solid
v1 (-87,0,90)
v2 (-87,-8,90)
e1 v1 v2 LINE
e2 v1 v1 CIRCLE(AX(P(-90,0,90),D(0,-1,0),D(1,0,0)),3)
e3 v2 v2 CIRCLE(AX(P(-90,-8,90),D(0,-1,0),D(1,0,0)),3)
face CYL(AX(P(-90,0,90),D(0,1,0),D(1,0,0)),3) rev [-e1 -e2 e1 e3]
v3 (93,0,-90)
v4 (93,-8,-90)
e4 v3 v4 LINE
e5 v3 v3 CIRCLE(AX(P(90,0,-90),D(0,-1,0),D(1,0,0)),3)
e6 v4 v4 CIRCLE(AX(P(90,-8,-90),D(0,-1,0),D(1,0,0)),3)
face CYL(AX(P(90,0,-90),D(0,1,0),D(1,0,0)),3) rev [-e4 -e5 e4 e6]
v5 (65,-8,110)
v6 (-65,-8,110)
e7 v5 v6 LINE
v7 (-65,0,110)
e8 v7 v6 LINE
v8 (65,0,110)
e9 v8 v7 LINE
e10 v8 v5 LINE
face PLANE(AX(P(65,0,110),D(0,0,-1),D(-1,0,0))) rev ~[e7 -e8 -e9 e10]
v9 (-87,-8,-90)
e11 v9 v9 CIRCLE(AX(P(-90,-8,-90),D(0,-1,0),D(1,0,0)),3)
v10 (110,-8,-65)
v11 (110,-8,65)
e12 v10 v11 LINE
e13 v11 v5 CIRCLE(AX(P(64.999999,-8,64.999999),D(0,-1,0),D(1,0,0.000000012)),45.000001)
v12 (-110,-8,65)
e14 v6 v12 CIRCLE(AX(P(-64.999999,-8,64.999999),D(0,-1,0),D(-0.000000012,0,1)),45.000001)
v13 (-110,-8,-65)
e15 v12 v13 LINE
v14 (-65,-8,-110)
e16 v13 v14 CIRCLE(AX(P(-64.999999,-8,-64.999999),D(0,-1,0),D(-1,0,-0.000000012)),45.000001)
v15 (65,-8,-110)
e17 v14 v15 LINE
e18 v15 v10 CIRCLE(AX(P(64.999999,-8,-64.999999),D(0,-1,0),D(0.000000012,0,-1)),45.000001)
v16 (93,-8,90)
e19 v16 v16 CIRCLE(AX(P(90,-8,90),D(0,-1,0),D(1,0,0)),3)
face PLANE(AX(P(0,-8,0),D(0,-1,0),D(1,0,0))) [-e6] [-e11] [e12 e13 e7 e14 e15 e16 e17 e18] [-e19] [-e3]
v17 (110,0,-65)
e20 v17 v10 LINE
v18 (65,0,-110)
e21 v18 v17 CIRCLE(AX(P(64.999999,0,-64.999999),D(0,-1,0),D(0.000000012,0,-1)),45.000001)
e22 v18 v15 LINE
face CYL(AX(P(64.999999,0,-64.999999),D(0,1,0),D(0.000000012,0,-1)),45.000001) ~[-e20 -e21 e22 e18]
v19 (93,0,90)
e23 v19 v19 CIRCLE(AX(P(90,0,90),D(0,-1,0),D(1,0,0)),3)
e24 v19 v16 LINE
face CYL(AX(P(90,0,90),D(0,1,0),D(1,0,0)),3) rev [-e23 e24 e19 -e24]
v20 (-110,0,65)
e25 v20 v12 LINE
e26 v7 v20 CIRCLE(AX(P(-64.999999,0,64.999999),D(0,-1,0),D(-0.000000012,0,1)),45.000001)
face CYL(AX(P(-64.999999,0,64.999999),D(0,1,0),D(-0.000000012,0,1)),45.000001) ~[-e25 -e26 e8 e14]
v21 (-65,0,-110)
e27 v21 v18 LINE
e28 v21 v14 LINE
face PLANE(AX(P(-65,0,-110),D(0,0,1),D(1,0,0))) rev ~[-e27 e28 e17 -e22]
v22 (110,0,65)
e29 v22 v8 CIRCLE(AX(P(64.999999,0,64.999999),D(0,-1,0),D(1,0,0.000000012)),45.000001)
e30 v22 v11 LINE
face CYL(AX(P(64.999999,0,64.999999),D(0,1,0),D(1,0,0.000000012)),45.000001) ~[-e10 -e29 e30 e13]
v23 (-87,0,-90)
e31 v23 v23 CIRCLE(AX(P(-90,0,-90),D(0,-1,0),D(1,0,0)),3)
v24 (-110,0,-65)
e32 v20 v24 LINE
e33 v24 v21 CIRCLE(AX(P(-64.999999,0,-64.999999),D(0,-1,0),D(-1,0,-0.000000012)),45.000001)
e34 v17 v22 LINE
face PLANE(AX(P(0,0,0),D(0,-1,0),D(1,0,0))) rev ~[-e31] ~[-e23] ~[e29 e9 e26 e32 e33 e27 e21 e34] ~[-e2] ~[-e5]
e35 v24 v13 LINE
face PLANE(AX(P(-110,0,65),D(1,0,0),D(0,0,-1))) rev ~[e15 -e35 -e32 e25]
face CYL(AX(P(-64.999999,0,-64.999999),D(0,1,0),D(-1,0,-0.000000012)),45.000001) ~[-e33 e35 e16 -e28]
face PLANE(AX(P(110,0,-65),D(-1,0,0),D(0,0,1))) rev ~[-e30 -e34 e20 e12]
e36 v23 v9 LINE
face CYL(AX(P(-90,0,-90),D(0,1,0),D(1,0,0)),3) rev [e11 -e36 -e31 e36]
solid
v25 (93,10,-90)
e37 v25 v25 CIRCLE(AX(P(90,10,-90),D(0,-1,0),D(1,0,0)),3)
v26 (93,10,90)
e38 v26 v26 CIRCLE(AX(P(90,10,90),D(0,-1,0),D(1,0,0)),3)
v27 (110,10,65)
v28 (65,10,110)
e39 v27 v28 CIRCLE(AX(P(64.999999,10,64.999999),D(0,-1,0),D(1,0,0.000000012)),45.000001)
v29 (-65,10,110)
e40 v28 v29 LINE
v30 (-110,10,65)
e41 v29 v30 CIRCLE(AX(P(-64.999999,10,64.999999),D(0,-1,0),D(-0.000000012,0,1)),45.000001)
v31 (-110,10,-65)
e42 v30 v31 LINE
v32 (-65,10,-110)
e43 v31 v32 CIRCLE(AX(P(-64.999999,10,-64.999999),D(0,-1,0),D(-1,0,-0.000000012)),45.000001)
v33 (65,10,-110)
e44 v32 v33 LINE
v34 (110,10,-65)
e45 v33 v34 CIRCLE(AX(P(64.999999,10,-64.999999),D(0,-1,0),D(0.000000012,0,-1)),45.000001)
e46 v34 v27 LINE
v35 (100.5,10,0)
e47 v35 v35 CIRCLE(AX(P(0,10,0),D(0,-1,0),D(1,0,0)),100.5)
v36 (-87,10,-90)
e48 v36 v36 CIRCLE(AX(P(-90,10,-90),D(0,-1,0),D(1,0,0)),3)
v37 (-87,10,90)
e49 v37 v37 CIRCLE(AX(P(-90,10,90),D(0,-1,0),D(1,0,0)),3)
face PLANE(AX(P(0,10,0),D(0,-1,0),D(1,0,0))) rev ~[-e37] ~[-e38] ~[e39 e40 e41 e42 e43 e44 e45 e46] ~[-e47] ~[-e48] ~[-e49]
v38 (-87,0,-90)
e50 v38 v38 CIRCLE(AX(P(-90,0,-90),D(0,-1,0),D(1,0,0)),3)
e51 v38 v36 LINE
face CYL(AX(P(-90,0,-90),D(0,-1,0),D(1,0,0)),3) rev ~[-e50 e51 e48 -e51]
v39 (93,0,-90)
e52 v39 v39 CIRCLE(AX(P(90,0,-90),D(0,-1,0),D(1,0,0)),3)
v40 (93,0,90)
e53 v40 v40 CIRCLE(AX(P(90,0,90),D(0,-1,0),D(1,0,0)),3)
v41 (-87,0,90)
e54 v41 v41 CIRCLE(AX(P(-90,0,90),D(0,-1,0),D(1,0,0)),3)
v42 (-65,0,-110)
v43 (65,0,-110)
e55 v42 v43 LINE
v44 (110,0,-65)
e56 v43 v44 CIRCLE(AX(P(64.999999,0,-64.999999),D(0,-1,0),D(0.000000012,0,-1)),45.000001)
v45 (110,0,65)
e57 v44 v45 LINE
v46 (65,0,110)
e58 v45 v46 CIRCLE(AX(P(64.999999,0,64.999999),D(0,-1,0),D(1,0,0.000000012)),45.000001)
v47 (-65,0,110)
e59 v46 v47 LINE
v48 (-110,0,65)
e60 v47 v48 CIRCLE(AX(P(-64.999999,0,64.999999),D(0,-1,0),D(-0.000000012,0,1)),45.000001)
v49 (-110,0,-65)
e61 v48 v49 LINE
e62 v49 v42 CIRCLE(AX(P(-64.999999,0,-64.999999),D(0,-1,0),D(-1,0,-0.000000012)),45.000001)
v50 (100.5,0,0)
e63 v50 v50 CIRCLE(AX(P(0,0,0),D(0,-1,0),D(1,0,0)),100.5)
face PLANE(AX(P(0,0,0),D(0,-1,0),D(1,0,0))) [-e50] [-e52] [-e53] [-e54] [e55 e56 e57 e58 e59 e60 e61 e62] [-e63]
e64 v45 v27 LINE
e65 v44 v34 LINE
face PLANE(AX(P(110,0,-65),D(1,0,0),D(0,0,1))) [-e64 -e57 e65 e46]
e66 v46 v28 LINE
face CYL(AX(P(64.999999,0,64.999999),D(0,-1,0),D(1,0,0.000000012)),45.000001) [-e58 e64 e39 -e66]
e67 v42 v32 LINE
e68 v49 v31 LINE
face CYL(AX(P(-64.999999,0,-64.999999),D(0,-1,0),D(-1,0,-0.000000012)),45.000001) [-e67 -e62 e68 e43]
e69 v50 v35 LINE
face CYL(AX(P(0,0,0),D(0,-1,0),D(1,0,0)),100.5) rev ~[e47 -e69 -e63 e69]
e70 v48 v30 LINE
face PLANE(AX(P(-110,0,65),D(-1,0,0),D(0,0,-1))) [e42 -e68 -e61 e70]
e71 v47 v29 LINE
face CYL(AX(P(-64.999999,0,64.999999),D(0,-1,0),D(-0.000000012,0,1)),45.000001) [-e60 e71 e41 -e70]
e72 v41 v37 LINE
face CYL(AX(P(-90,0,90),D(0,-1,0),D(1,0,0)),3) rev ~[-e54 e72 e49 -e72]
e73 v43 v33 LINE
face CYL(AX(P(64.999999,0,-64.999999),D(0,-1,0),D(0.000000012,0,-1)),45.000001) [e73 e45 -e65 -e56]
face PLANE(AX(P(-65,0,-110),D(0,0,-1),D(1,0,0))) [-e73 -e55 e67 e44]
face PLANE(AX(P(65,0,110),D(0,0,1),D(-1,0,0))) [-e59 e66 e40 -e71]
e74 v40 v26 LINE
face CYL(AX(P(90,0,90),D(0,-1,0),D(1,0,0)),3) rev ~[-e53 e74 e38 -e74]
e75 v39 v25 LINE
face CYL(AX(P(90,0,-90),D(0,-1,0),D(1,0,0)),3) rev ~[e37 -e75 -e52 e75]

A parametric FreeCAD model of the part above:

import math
import FreeCAD as App
import Part
import Sketcher
Q = App.Units.Quantity

doc = App.newDocument("Part")
body = doc.addObject("PartDesign::Body", "Body")

# Sketch on XZ plane
sketch1 = doc.addObject("Sketcher::SketchObject", "Sketch")
body.addObject(sketch1)
sketch1.AttachmentSupport = (doc.XZ_Plane, [""])
sketch1.MapMode = "FlatFace"
sketch1.addGeometry([
    Part.LineSegment(App.Vector(65, 110, 0), App.Vector(-65, 110, 0)),  # 0
    Part.ArcOfCircle(Part.Circle(App.Vector(-65, 65, 0), App.Vector(0, 0, 1), 45), math.radians(90), math.radians(180)),  # 1
    Part.LineSegment(App.Vector(-110, 65, 0), App.Vector(-110, -65, 0)),  # 2
    Part.ArcOfCircle(Part.Circle(App.Vector(-65, -65, 0), App.Vector(0, 0, 1), 45), math.radians(-180), math.radians(-90)),  # 3
    Part.LineSegment(App.Vector(-65, -110, 0), App.Vector(65, -110, 0)),  # 4
    Part.ArcOfCircle(Part.Circle(App.Vector(65, -65, 0), App.Vector(0, 0, 1), 45), math.radians(-90), math.radians(0)),  # 5
    Part.LineSegment(App.Vector(110, -65, 0), App.Vector(110, 65, 0)),  # 6
    Part.ArcOfCircle(Part.Circle(App.Vector(65, 65, 0), App.Vector(0, 0, 1), 45), math.radians(0), math.radians(90)),  # 7
    Part.Circle(App.Vector(-90, -90, 0), App.Vector(0, 0, 1), 3),  # 8
    Part.Circle(App.Vector(90, -90, 0), App.Vector(0, 0, 1), 3),  # 9
    Part.Circle(App.Vector(-90, 90, 0), App.Vector(0, 0, 1), 3),  # 10
    Part.Circle(App.Vector(0, 0, 0), App.Vector(0, 0, 1), 100.5),  # 11
    Part.Circle(App.Vector(90, 90, 0), App.Vector(0, 0, 1), 3),  # 12
], False)
sketch1.addConstraint([
    Sketcher.Constraint("Tangent", 0, 2, 1, 1),
    Sketcher.Constraint("Tangent", 1, 2, 2, 1),
    Sketcher.Constraint("Tangent", 2, 2, 3, 1),
    Sketcher.Constraint("Tangent", 3, 2, 4, 1),
    Sketcher.Constraint("Tangent", 4, 2, 5, 1),
    Sketcher.Constraint("Tangent", 5, 2, 6, 1),
    Sketcher.Constraint("Tangent", 6, 2, 7, 1),
    Sketcher.Constraint("Tangent", 7, 2, 0, 1),
    Sketcher.Constraint("Horizontal", 0),
    Sketcher.Constraint("Vertical", 2),
    Sketcher.Constraint("Horizontal", 4),
    Sketcher.Constraint("Vertical", 6),
    Sketcher.Constraint("Coincident", 11, 3, -1, 1),
    Sketcher.Constraint("Equal", 1, 3),
    Sketcher.Constraint("Equal", 3, 5),
    Sketcher.Constraint("Equal", 5, 7),
    Sketcher.Constraint("Equal", 8, 9),
    Sketcher.Constraint("Equal", 9, 10),
    Sketcher.Constraint("Equal", 10, 12),
    Sketcher.Constraint("Symmetric", 1, 3, 5, 3, -1, 1),
    Sketcher.Constraint("Symmetric", 9, 3, 10, 3, -1, 1),
    Sketcher.Constraint("Symmetric", 8, 3, 12, 3, -1, 1),
    Sketcher.Constraint("Symmetric", 8, 3, 9, 3, -2),
    Sketcher.Constraint("Equal", 4, 2),
    Sketcher.Constraint("Diameter", 8, Q("6 mm")),
    Sketcher.Constraint("Diameter", 11, Q("201 mm")),
    Sketcher.Constraint("Radius", 1, Q("45.000001 mm")),
    Sketcher.Constraint("DistanceX", 0, 2, 0, 1, Q("130 mm")),
    Sketcher.Constraint("DistanceX", 8, 3, -1, 1, Q("90 mm")),
    Sketcher.Constraint("DistanceY", 8, 3, -1, 1, Q("90 mm")),
])
pad1 = doc.addObject("PartDesign::Pad", "Pad")
body.addObject(pad1)
pad1.Profile = sketch1
pad1.Length = 10
pad1.Reversed = True
body2 = doc.addObject("PartDesign::Body", "Body001")

# Sketch on XZ plane
sketch2 = doc.addObject("Sketcher::SketchObject", "Sketch001")
body2.addObject(sketch2)
sketch2.AttachmentSupport = (doc.getObject("XZ_Plane001"), [""])
sketch2.MapMode = "FlatFace"
sketch2.addGeometry([
    Part.LineSegment(App.Vector(65, 110, 0), App.Vector(-65, 110, 0)),  # 0
    Part.ArcOfCircle(Part.Circle(App.Vector(-65, 65, 0), App.Vector(0, 0, 1), 45), math.radians(90), math.radians(180)),  # 1
    Part.LineSegment(App.Vector(-110, 65, 0), App.Vector(-110, -65, 0)),  # 2
    Part.ArcOfCircle(Part.Circle(App.Vector(-65, -65, 0), App.Vector(0, 0, 1), 45), math.radians(-180), math.radians(-90)),  # 3
    Part.LineSegment(App.Vector(-65, -110, 0), App.Vector(65, -110, 0)),  # 4
    Part.ArcOfCircle(Part.Circle(App.Vector(65, -65, 0), App.Vector(0, 0, 1), 45), math.radians(-90), math.radians(0)),  # 5
    Part.LineSegment(App.Vector(110, -65, 0), App.Vector(110, 65, 0)),  # 6
    Part.ArcOfCircle(Part.Circle(App.Vector(65, 65, 0), App.Vector(0, 0, 1), 45), math.radians(0), math.radians(90)),  # 7
    Part.Circle(App.Vector(-90, -90, 0), App.Vector(0, 0, 1), 3),  # 8
    Part.Circle(App.Vector(90, -90, 0), App.Vector(0, 0, 1), 3),  # 9
    Part.Circle(App.Vector(-90, 90, 0), App.Vector(0, 0, 1), 3),  # 10
    Part.Circle(App.Vector(90, 90, 0), App.Vector(0, 0, 1), 3),  # 11
], False)
sketch2.addConstraint([
    Sketcher.Constraint("Tangent", 0, 2, 1, 1),
    Sketcher.Constraint("Tangent", 1, 2, 2, 1),
    Sketcher.Constraint("Tangent", 2, 2, 3, 1),
    Sketcher.Constraint("Tangent", 3, 2, 4, 1),
    Sketcher.Constraint("Tangent", 4, 2, 5, 1),
    Sketcher.Constraint("Tangent", 5, 2, 6, 1),
    Sketcher.Constraint("Tangent", 6, 2, 7, 1),
    Sketcher.Constraint("Tangent", 7, 2, 0, 1),
    Sketcher.Constraint("Horizontal", 0),
    Sketcher.Constraint("Vertical", 2),
    Sketcher.Constraint("Horizontal", 4),
    Sketcher.Constraint("Vertical", 6),
    Sketcher.Constraint("Equal", 1, 3),
    Sketcher.Constraint("Equal", 3, 5),
    Sketcher.Constraint("Equal", 5, 7),
    Sketcher.Constraint("Equal", 8, 9),
    Sketcher.Constraint("Equal", 9, 10),
    Sketcher.Constraint("Equal", 10, 11),
    Sketcher.Constraint("Symmetric", 1, 3, 5, 3, -1, 1),
    Sketcher.Constraint("Symmetric", 9, 3, 10, 3, -1, 1),
    Sketcher.Constraint("Symmetric", 8, 3, 11, 3, -1, 1),
    Sketcher.Constraint("Symmetric", 8, 3, 9, 3, -2),
    Sketcher.Constraint("Equal", 4, 2),
    Sketcher.Constraint("Diameter", 8, Q("6 mm")),
    Sketcher.Constraint("Radius", 1, Q("45.000001 mm")),
    Sketcher.Constraint("DistanceX", 0, 2, 0, 1, Q("130 mm")),
    Sketcher.Constraint("DistanceX", 8, 3, -1, 1, Q("90 mm")),
    Sketcher.Constraint("DistanceY", 8, 3, -1, 1, Q("90 mm")),
])
pad2 = doc.addObject("PartDesign::Pad", "Pad001")
body2.addObject(pad2)
pad2.Profile = sketch2
pad2.Length = 8

doc.recompute()
